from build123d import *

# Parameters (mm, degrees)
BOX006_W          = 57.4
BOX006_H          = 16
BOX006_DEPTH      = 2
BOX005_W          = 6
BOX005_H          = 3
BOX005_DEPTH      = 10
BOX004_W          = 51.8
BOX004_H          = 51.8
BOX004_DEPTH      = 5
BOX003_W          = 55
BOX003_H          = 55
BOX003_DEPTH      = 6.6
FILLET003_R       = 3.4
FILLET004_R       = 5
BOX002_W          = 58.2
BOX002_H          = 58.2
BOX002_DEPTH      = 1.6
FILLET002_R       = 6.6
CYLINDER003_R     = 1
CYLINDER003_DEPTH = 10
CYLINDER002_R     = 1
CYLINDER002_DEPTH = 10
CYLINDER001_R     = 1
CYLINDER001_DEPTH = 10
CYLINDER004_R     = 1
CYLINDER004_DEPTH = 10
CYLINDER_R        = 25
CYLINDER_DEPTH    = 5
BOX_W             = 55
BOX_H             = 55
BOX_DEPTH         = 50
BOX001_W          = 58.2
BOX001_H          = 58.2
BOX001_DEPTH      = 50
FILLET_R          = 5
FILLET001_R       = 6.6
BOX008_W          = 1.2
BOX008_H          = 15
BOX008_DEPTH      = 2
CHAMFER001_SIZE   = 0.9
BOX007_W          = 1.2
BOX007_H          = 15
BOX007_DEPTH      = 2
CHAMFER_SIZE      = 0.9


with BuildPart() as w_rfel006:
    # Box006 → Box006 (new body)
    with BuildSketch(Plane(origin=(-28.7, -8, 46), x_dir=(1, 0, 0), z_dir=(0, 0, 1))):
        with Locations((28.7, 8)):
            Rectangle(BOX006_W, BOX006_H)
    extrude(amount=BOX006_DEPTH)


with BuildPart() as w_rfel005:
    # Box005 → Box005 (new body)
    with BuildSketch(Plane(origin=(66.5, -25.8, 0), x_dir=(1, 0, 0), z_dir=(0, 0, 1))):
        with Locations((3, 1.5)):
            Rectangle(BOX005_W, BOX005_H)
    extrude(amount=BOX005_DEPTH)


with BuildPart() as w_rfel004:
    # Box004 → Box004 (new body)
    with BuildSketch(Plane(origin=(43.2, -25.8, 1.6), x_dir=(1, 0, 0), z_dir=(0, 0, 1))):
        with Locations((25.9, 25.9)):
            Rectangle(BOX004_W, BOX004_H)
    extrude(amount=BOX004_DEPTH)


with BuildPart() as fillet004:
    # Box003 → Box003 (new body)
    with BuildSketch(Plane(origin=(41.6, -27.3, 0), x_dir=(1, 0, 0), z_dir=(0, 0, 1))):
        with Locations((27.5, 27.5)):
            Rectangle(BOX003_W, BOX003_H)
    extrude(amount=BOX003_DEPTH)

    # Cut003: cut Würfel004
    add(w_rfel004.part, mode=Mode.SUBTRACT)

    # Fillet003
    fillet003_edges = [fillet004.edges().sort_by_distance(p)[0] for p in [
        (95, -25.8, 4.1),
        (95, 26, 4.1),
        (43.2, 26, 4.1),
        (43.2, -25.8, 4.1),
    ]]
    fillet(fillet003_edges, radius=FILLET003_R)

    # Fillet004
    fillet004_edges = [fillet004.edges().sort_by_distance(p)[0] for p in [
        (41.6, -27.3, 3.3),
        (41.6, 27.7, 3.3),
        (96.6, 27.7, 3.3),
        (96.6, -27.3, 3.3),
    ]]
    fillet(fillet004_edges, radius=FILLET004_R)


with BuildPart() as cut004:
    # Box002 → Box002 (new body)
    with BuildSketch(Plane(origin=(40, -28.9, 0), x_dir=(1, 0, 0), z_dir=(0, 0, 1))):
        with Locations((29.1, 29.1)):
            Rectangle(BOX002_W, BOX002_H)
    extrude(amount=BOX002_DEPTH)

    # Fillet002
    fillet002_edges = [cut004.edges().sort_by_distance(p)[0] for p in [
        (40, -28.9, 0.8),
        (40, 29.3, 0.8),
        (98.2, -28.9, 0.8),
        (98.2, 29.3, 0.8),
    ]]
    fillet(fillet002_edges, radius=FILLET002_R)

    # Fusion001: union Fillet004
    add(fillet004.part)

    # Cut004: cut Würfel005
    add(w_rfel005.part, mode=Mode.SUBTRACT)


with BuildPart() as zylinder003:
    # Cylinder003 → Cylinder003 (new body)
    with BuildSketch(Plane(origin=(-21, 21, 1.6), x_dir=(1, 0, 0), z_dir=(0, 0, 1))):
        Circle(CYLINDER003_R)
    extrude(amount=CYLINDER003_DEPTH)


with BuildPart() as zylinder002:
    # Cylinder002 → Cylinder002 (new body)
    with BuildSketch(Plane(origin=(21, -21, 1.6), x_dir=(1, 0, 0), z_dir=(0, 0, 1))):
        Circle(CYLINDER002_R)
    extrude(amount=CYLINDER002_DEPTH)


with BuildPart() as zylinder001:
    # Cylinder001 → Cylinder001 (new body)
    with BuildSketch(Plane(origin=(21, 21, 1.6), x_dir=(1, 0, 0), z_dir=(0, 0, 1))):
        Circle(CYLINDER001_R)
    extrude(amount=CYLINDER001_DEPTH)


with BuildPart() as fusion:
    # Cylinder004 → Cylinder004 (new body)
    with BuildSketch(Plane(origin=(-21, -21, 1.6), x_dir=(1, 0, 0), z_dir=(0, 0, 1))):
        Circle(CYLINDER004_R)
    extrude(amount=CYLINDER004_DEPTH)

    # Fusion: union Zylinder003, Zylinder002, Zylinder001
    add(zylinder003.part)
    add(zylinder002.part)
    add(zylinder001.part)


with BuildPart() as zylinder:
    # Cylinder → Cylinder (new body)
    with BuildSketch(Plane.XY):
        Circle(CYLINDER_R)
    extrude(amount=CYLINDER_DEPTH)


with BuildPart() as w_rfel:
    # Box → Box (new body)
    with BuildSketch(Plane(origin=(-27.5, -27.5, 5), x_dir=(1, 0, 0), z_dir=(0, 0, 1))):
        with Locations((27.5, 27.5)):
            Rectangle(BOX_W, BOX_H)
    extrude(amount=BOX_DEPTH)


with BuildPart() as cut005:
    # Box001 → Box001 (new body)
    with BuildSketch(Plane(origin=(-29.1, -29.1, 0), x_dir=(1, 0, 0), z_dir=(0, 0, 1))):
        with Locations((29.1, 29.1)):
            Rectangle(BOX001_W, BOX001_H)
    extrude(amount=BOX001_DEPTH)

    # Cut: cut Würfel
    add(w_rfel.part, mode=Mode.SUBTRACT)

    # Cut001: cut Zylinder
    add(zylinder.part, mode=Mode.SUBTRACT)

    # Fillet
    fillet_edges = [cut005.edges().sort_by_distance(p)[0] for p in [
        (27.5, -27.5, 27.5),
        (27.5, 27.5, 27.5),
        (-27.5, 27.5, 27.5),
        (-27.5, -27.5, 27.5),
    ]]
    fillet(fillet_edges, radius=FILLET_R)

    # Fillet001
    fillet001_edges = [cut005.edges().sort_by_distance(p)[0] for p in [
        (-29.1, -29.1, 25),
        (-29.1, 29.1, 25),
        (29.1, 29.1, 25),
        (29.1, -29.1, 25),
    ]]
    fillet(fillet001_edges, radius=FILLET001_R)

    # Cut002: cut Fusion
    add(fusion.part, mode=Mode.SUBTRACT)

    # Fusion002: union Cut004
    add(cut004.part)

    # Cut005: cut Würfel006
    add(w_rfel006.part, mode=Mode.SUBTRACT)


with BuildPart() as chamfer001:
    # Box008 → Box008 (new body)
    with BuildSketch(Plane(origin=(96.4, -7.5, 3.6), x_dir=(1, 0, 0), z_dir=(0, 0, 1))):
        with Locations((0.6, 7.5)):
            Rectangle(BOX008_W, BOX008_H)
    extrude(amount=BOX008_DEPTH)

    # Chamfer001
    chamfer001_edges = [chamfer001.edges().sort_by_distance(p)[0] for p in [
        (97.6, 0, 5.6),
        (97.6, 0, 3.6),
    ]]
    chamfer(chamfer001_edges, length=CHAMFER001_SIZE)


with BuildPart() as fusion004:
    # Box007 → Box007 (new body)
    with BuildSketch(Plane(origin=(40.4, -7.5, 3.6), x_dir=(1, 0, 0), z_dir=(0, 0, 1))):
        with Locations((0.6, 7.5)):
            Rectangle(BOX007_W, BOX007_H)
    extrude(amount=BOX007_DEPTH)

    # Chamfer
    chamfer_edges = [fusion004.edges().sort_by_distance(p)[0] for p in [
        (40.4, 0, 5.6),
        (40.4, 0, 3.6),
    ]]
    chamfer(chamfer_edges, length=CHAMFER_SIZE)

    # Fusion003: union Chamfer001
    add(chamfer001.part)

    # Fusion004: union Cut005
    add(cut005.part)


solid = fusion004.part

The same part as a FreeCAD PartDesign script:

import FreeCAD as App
import Part
import Sketcher

V = App.Vector


def edges_at(feature, points):
    """Names of the edges that pass closest to the given points."""
    edges = feature.Shape.Edges
    near = lambda p: min(range(len(edges)), key=lambda i: edges[i].distToShape(Part.Vertex(*p))[0])
    return sorted({f"Edge{near(p) + 1}" for p in points})


def add_polygon(sketch, points):
    """Adds a closed chain of lines whose ends are joined by coincident constraints."""
    first, n = sketch.GeometryCount, len(points)
    for a, b in zip(points, points[1:] + points[:1]):
        sketch.addGeometry(Part.LineSegment(App.Vector(*a, 0), App.Vector(*b, 0)), False)
    for i in range(n):
        sketch.addConstraint(Sketcher.Constraint("Coincident", first + i, 2, first + (i + 1) % n, 1))

doc = App.newDocument("Part")
params = doc.addObject("Spreadsheet::Sheet", "Params")
for row, (alias, value) in enumerate([
    ("sketch1_height", "16 mm"),
    ("sketch1_width", "57.4 mm"),
    ("pad1_length", "2 mm"),
    ("sketch2_width", "6 mm"),
    ("sketch2_height", "3 mm"),
    ("pad2_length", "10 mm"),
    ("sketch3_width", "51.8 mm"),
    ("pad3_length", "5 mm"),
    ("sketch4_width", "55 mm"),
    ("pad4_length", "6.6 mm"),
    ("fillet_radius", "3.4 mm"),
    ("fillet2_radius", "5 mm"),
    ("sketch5_width", "58.2 mm"),
    ("pad5_length", "1.6 mm"),
    ("fillet3_radius", "6.6 mm"),
    ("sketch6_diameter", "2 mm"),
    ("pad6_length", "10 mm"),
    ("sketch7_diameter", "2 mm"),
    ("pad7_length", "10 mm"),
    ("sketch8_diameter", "2 mm"),
    ("pad8_length", "10 mm"),
    ("sketch9_diameter", "2 mm"),
    ("pad9_length", "10 mm"),
    ("sketch10_diameter", "50 mm"),
    ("pad10_length", "5 mm"),
    ("sketch11_width", "55 mm"),
    ("pad11_length", "50 mm"),
    ("sketch12_width", "58.2 mm"),
    ("pad12_length", "50 mm"),
    ("fillet4_radius", "5 mm"),
    ("fillet5_radius", "6.6 mm"),
    ("sketch13_height", "15 mm"),
    ("sketch13_width", "1.2 mm"),
    ("pad13_length", "2 mm"),
    ("chamfer_size", "0.9 mm"),
    ("sketch14_height", "15 mm"),
    ("sketch14_width", "1.2 mm"),
    ("pad14_length", "2 mm"),
    ("chamfer2_size", "0.9 mm"),
], start=1):
    params.set(f"A{row}", alias)
    params.set(f"B{row}", "=" + value)
    params.setAlias(f"B{row}", alias)

body = doc.addObject("PartDesign::Body", "Body")

sketch1 = body.newObject("Sketcher::SketchObject", "Sketch")
sketch1.AttachmentSupport = (doc.getObject("XY_Plane"), [""])
sketch1.MapMode = "FlatFace"
sketch1.AttachmentOffset = App.Placement(V(0, 0, 46), App.Rotation())
add_polygon(sketch1, [(-29, 8), (-29, -8), (29, -8), (29, 8)])
sketch1.addConstraint([
    Sketcher.Constraint("Vertical", 0),
    Sketcher.Constraint("Horizontal", 1),
    Sketcher.Constraint("Vertical", 2),
    Sketcher.Constraint("Horizontal", 3),
    Sketcher.Constraint("Symmetric", 0, 2, 2, 2, -1, 1),
    Sketcher.Constraint("DistanceY", 0, 2, 0, 1, 16.0),
    Sketcher.Constraint("DistanceX", 1, 1, 1, 2, 57.4),
])
sketch1.setExpression("Constraints[9]", "Params.sketch1_height")
sketch1.setExpression("Constraints[10]", "Params.sketch1_width")
pad1 = body.newObject("PartDesign::Pad", "Pad")
pad1.Profile = sketch1
pad1.setExpression("Length", "Params.pad1_length")
body2 = doc.addObject("PartDesign::Body", "Body001")

sketch2 = body2.newObject("Sketcher::SketchObject", "Sketch001")
sketch2.AttachmentSupport = (doc.getObject("XY_Plane001"), [""])
sketch2.MapMode = "FlatFace"
add_polygon(sketch2, [(66.5, -22.8), (66.5, -25.8), (72.5, -25.8), (72.5, -22.8)])
sketch2.addConstraint([
    Sketcher.Constraint("Vertical", 0),
    Sketcher.Constraint("Horizontal", 1),
    Sketcher.Constraint("Vertical", 2),
    Sketcher.Constraint("Horizontal", 3),
    Sketcher.Constraint("DistanceX", 1, 1, 1, 2, 6.0),
    Sketcher.Constraint("DistanceY", 0, 2, 0, 1, 3.0),
    Sketcher.Constraint("DistanceX", -1, 1, 0, 2, 66.5),
    Sketcher.Constraint("DistanceY", 0, 2, -1, 1, 25.8),
])
sketch2.setExpression("Constraints[8]", "Params.sketch2_width")
sketch2.setExpression("Constraints[9]", "Params.sketch2_height")
pad2 = body2.newObject("PartDesign::Pad", "Pad001")
pad2.Profile = sketch2
pad2.setExpression("Length", "Params.pad2_length")
body3 = doc.addObject("PartDesign::Body", "Body002")

sketch3 = body3.newObject("Sketcher::SketchObject", "Sketch002")
sketch3.AttachmentSupport = (doc.getObject("XY_Plane002"), [""])
sketch3.MapMode = "FlatFace"
sketch3.AttachmentOffset = App.Placement(V(0, 0, 1.6), App.Rotation())
add_polygon(sketch3, [(43, 26), (43, -26), (95, -26), (95, 26)])
sketch3.addConstraint([
    Sketcher.Constraint("Vertical", 0),
    Sketcher.Constraint("Horizontal", 1),
    Sketcher.Constraint("Vertical", 2),
    Sketcher.Constraint("Horizontal", 3),
    Sketcher.Constraint("Equal", 3, 0),
    Sketcher.Constraint("DistanceX", 1, 1, 1, 2, 51.8),
    Sketcher.Constraint("DistanceX", -1, 1, 1, 2, 95.0),
    Sketcher.Constraint("DistanceY", -1, 1, 2, 2, 26.0),
])
sketch3.setExpression("Constraints[9]", "Params.sketch3_width")
pad3 = body3.newObject("PartDesign::Pad", "Pad002")
pad3.Profile = sketch3
pad3.setExpression("Length", "Params.pad3_length")
body4 = doc.addObject("PartDesign::Body", "Body003")

sketch4 = body4.newObject("Sketcher::SketchObject", "Sketch003")
sketch4.AttachmentSupport = (doc.getObject("XY_Plane003"), [""])
sketch4.MapMode = "FlatFace"
add_polygon(sketch4, [(42, 28), (42, -27), (97, -27), (97, 28)])
sketch4.addConstraint([
    Sketcher.Constraint("Vertical", 0),
    Sketcher.Constraint("Horizontal", 1),
    Sketcher.Constraint("Vertical", 2),
    Sketcher.Constraint("Horizontal", 3),
    Sketcher.Constraint("Equal", 3, 0),
    Sketcher.Constraint("DistanceX", 1, 1, 1, 2, 55.0),
    Sketcher.Constraint("DistanceX", -1, 1, 0, 2, 41.6),
    Sketcher.Constraint("DistanceY", 0, 2, -1, 1, 27.3),
])
sketch4.setExpression("Constraints[9]", "Params.sketch4_width")
pad4 = body4.newObject("PartDesign::Pad", "Pad003")
pad4.Profile = sketch4
pad4.setExpression("Length", "Params.pad4_length")
doc.recompute()

boolean = body4.newObject("PartDesign::Boolean", "Boolean")
boolean.Type = "Cut"
boolean.addObjects([body3])
doc.recompute()

fillet = body4.newObject("PartDesign::Fillet", "Fillet")
fillet.Base = (boolean, edges_at(boolean, [
    (95, -25.8, 4.1),
    (95, 26, 4.1),
    (43.2, 26, 4.1),
    (43.2, -25.8, 4.1),
]))
fillet.setExpression("Radius", "Params.fillet_radius")
doc.recompute()

fillet2 = body4.newObject("PartDesign::Fillet", "Fillet001")
fillet2.Base = (fillet, edges_at(fillet, [
    (41.6, -27.3, 3.3),
    (41.6, 27.7, 3.3),
    (96.6, 27.7, 3.3),
    (96.6, -27.3, 3.3),
]))
fillet2.setExpression("Radius", "Params.fillet2_radius")
body5 = doc.addObject("PartDesign::Body", "Body004")

sketch5 = body5.newObject("Sketcher::SketchObject", "Sketch004")
sketch5.AttachmentSupport = (doc.getObject("XY_Plane004"), [""])
sketch5.MapMode = "FlatFace"
add_polygon(sketch5, [(40, 29), (40, -29), (98, -29), (98, 29)])
sketch5.addConstraint([
    Sketcher.Constraint("Vertical", 0),
    Sketcher.Constraint("Horizontal", 1),
    Sketcher.Constraint("Vertical", 2),
    Sketcher.Constraint("Horizontal", 3),
    Sketcher.Constraint("Equal", 3, 0),
    Sketcher.Constraint("DistanceX", 1, 1, 1, 2, 58.2),
    Sketcher.Constraint("DistanceX", -1, 1, 0, 2, 40.0),
    Sketcher.Constraint("DistanceY", 0, 2, -1, 1, 28.9),
])
sketch5.setExpression("Constraints[9]", "Params.sketch5_width")
pad5 = body5.newObject("PartDesign::Pad", "Pad004")
pad5.Profile = sketch5
pad5.setExpression("Length", "Params.pad5_length")
doc.recompute()

fillet3 = body5.newObject("PartDesign::Fillet", "Fillet002")
fillet3.Base = (pad5, edges_at(pad5, [
    (40, -28.9, 0.8),
    (40, 29.3, 0.8),
    (98.2, -28.9, 0.8),
    (98.2, 29.3, 0.8),
]))
fillet3.setExpression("Radius", "Params.fillet3_radius")
doc.recompute()

boolean2 = body5.newObject("PartDesign::Boolean", "Boolean001")
boolean2.Type = "Fuse"
boolean2.addObjects([body4])
doc.recompute()

boolean3 = body5.newObject("PartDesign::Boolean", "Boolean002")
boolean3.Type = "Cut"
boolean3.addObjects([body2])
body6 = doc.addObject("PartDesign::Body", "Body005")

sketch6 = body6.newObject("Sketcher::SketchObject", "Sketch005")
sketch6.AttachmentSupport = (doc.getObject("XY_Plane005"), [""])
sketch6.MapMode = "FlatFace"
sketch6.AttachmentOffset = App.Placement(V(0, 0, 1.6), App.Rotation())
sketch6.addGeometry(Part.Circle(V(-21, 21, 0), V(0, 0, 1), 1), False)
sketch6.addConstraint([
    Sketcher.Constraint("Diameter", 0, 2.0),
    Sketcher.Constraint("DistanceX", 0, 3, -1, 1, 21.0),
    Sketcher.Constraint("DistanceY", -1, 1, 0, 3, 21.0),
])
sketch6.setExpression("Constraints[0]", "Params.sketch6_diameter")
pad6 = body6.newObject("PartDesign::Pad", "Pad005")
pad6.Profile = sketch6
pad6.setExpression("Length", "Params.pad6_length")
body7 = doc.addObject("PartDesign::Body", "Body006")

sketch7 = body7.newObject("Sketcher::SketchObject", "Sketch006")
sketch7.AttachmentSupport = (doc.getObject("XY_Plane006"), [""])
sketch7.MapMode = "FlatFace"
sketch7.AttachmentOffset = App.Placement(V(0, 0, 1.6), App.Rotation())
sketch7.addGeometry(Part.Circle(V(21, -21, 0), V(0, 0, 1), 1), False)
sketch7.addConstraint([
    Sketcher.Constraint("Diameter", 0, 2.0),
    Sketcher.Constraint("DistanceX", -1, 1, 0, 3, 21.0),
    Sketcher.Constraint("DistanceY", 0, 3, -1, 1, 21.0),
])
sketch7.setExpression("Constraints[0]", "Params.sketch7_diameter")
pad7 = body7.newObject("PartDesign::Pad", "Pad006")
pad7.Profile = sketch7
pad7.setExpression("Length", "Params.pad7_length")
body8 = doc.addObject("PartDesign::Body", "Body007")

sketch8 = body8.newObject("Sketcher::SketchObject", "Sketch007")
sketch8.AttachmentSupport = (doc.getObject("XY_Plane007"), [""])
sketch8.MapMode = "FlatFace"
sketch8.AttachmentOffset = App.Placement(V(0, 0, 1.6), App.Rotation())
sketch8.addGeometry(Part.Circle(V(21, 21, 0), V(0, 0, 1), 1), False)
sketch8.addConstraint([
    Sketcher.Constraint("Diameter", 0, 2.0),
    Sketcher.Constraint("DistanceX", -1, 1, 0, 3, 21.0),
    Sketcher.Constraint("DistanceY", -1, 1, 0, 3, 21.0),
])
sketch8.setExpression("Constraints[0]", "Params.sketch8_diameter")
pad8 = body8.newObject("PartDesign::Pad", "Pad007")
pad8.Profile = sketch8
pad8.setExpression("Length", "Params.pad8_length")
body9 = doc.addObject("PartDesign::Body", "Body008")
body9.AllowCompound = True

sketch9 = body9.newObject("Sketcher::SketchObject", "Sketch008")
sketch9.AttachmentSupport = (doc.getObject("XY_Plane008"), [""])
sketch9.MapMode = "FlatFace"
sketch9.AttachmentOffset = App.Placement(V(0, 0, 1.6), App.Rotation())
sketch9.addGeometry(Part.Circle(V(-21, -21, 0), V(0, 0, 1), 1), False)
sketch9.addConstraint([
    Sketcher.Constraint("Diameter", 0, 2.0),
    Sketcher.Constraint("DistanceX", 0, 3, -1, 1, 21.0),
    Sketcher.Constraint("DistanceY", 0, 3, -1, 1, 21.0),
])
sketch9.setExpression("Constraints[0]", "Params.sketch9_diameter")
pad9 = body9.newObject("PartDesign::Pad", "Pad008")
pad9.Profile = sketch9
pad9.setExpression("Length", "Params.pad9_length")
doc.recompute()

boolean4 = body9.newObject("PartDesign::Boolean", "Boolean003")
boolean4.Type = "Fuse"
boolean4.addObjects([body6])
doc.recompute()

boolean5 = body9.newObject("PartDesign::Boolean", "Boolean004")
boolean5.Type = "Fuse"
boolean5.addObjects([body7])
doc.recompute()

boolean6 = body9.newObject("PartDesign::Boolean", "Boolean005")
boolean6.Type = "Fuse"
boolean6.addObjects([body8])
body10 = doc.addObject("PartDesign::Body", "Body009")

sketch10 = body10.newObject("Sketcher::SketchObject", "Sketch009")
sketch10.AttachmentSupport = (doc.getObject("XY_Plane009"), [""])
sketch10.MapMode = "FlatFace"
sketch10.addGeometry(Part.Circle(V(0, 0, 0), V(0, 0, 1), 25), False)
sketch10.addConstraint([
    Sketcher.Constraint("Coincident", 0, 3, -1, 1),
    Sketcher.Constraint("Diameter", 0, 50.0),
])
sketch10.setExpression("Constraints[1]", "Params.sketch10_diameter")
pad10 = body10.newObject("PartDesign::Pad", "Pad009")
pad10.Profile = sketch10
pad10.setExpression("Length", "Params.pad10_length")
body11 = doc.addObject("PartDesign::Body", "Body010")

sketch11 = body11.newObject("Sketcher::SketchObject", "Sketch010")
sketch11.AttachmentSupport = (doc.getObject("XY_Plane010"), [""])
sketch11.MapMode = "FlatFace"
sketch11.AttachmentOffset = App.Placement(V(0, 0, 5), App.Rotation())
add_polygon(sketch11, [(-28, 28), (-28, -28), (28, -28), (28, 28)])
sketch11.addConstraint([
    Sketcher.Constraint("Vertical", 0),
    Sketcher.Constraint("Horizontal", 1),
    Sketcher.Constraint("Vertical", 2),
    Sketcher.Constraint("Horizontal", 3),
    Sketcher.Constraint("Symmetric", 0, 2, 2, 2, -1, 1),
    Sketcher.Constraint("Equal", 3, 0),
    Sketcher.Constraint("DistanceX", 1, 1, 1, 2, 55.0),
])
sketch11.setExpression("Constraints[10]", "Params.sketch11_width")
pad11 = body11.newObject("PartDesign::Pad", "Pad010")
pad11.Profile = sketch11
pad11.setExpression("Length", "Params.pad11_length")
body12 = doc.addObject("PartDesign::Body", "Body011")
body12.AllowCompound = True

sketch12 = body12.newObject("Sketcher::SketchObject", "Sketch011")
sketch12.AttachmentSupport = (doc.getObject("XY_Plane011"), [""])
sketch12.MapMode = "FlatFace"
add_polygon(sketch12, [(-29, 29), (-29, -29), (29, -29), (29, 29)])
sketch12.addConstraint([
    Sketcher.Constraint("Vertical", 0),
    Sketcher.Constraint("Horizontal", 1),
    Sketcher.Constraint("Vertical", 2),
    Sketcher.Constraint("Horizontal", 3),
    Sketcher.Constraint("Symmetric", 0, 2, 2, 2, -1, 1),
    Sketcher.Constraint("Equal", 3, 0),
    Sketcher.Constraint("DistanceX", 1, 1, 1, 2, 58.2),
])
sketch12.setExpression("Constraints[10]", "Params.sketch12_width")
pad12 = body12.newObject("PartDesign::Pad", "Pad011")
pad12.Profile = sketch12
pad12.setExpression("Length", "Params.pad12_length")
doc.recompute()

boolean7 = body12.newObject("PartDesign::Boolean", "Boolean006")
boolean7.Type = "Cut"
boolean7.addObjects([body11])
doc.recompute()

boolean8 = body12.newObject("PartDesign::Boolean", "Boolean007")
boolean8.Type = "Cut"
boolean8.addObjects([body10])
doc.recompute()

fillet4 = body12.newObject("PartDesign::Fillet", "Fillet003")
fillet4.Base = (boolean8, edges_at(boolean8, [
    (27.5, -27.5, 27.5),
    (27.5, 27.5, 27.5),
    (-27.5, 27.5, 27.5),
    (-27.5, -27.5, 27.5),
]))
fillet4.setExpression("Radius", "Params.fillet4_radius")
doc.recompute()

fillet5 = body12.newObject("PartDesign::Fillet", "Fillet004")
fillet5.Base = (fillet4, edges_at(fillet4, [
    (-29.1, -29.1, 25),
    (-29.1, 29.1, 25),
    (29.1, 29.1, 25),
    (29.1, -29.1, 25),
]))
fillet5.setExpression("Radius", "Params.fillet5_radius")
doc.recompute()

boolean9 = body12.newObject("PartDesign::Boolean", "Boolean008")
boolean9.Type = "Cut"
boolean9.addObjects([body9])
doc.recompute()

boolean10 = body12.newObject("PartDesign::Boolean", "Boolean009")
boolean10.Type = "Fuse"
boolean10.addObjects([body5])
doc.recompute()

boolean11 = body12.newObject("PartDesign::Boolean", "Boolean010")
boolean11.Type = "Cut"
boolean11.addObjects([body])
body13 = doc.addObject("PartDesign::Body", "Body012")

sketch13 = body13.newObject("Sketcher::SketchObject", "Sketch012")
sketch13.AttachmentSupport = (doc.getObject("XY_Plane012"), [""])
sketch13.MapMode = "FlatFace"
sketch13.AttachmentOffset = App.Placement(V(0, 0, 3.6), App.Rotation())
add_polygon(sketch13, [(96.4, 7.5), (96.4, -7.5), (97.6, -7.5), (97.6, 7.5)])
sketch13.addConstraint([
    Sketcher.Constraint("Vertical", 0),
    Sketcher.Constraint("Horizontal", 1),
    Sketcher.Constraint("Vertical", 2),
    Sketcher.Constraint("Horizontal", 3),
    Sketcher.Constraint("DistanceY", 0, 2, 0, 1, 15.0),
    Sketcher.Constraint("DistanceX", 1, 1, 1, 2, 1.2),
    Sketcher.Constraint("DistanceX", -1, 1, 0, 2, 96.4),
    Sketcher.Constraint("DistanceY", 0, 2, -1, 1, 7.5),
])
sketch13.setExpression("Constraints[8]", "Params.sketch13_height")
sketch13.setExpression("Constraints[9]", "Params.sketch13_width")
pad13 = body13.newObject("PartDesign::Pad", "Pad012")
pad13.Profile = sketch13
pad13.setExpression("Length", "Params.pad13_length")
doc.recompute()

chamfer = body13.newObject("PartDesign::Chamfer", "Chamfer")
chamfer.Base = (pad13, edges_at(pad13, [(97.6, 0, 5.6), (97.6, 0, 3.6)]))
chamfer.setExpression("Size", "Params.chamfer_size")
body14 = doc.addObject("PartDesign::Body", "Body013")
body14.AllowCompound = True

sketch14 = body14.newObject("Sketcher::SketchObject", "Sketch013")
sketch14.AttachmentSupport = (doc.getObject("XY_Plane013"), [""])
sketch14.MapMode = "FlatFace"
sketch14.AttachmentOffset = App.Placement(V(0, 0, 3.6), App.Rotation())
add_polygon(sketch14, [(40.4, 7.5), (40.4, -7.5), (41.6, -7.5), (41.6, 7.5)])
sketch14.addConstraint([
    Sketcher.Constraint("Vertical", 0),
    Sketcher.Constraint("Horizontal", 1),
    Sketcher.Constraint("Vertical", 2),
    Sketcher.Constraint("Horizontal", 3),
    Sketcher.Constraint("DistanceY", 0, 2, 0, 1, 15.0),
    Sketcher.Constraint("DistanceX", 1, 1, 1, 2, 1.2),
    Sketcher.Constraint("DistanceX", -1, 1, 0, 2, 40.4),
    Sketcher.Constraint("DistanceY", 0, 2, -1, 1, 7.5),
])
sketch14.setExpression("Constraints[8]", "Params.sketch14_height")
sketch14.setExpression("Constraints[9]", "Params.sketch14_width")
pad14 = body14.newObject("PartDesign::Pad", "Pad013")
pad14.Profile = sketch14
pad14.setExpression("Length", "Params.pad14_length")
doc.recompute()

chamfer2 = body14.newObject("PartDesign::Chamfer", "Chamfer001")
chamfer2.Base = (pad14, edges_at(pad14, [(40.4, 0, 5.6), (40.4, 0, 3.6)]))
chamfer2.setExpression("Size", "Params.chamfer2_size")
doc.recompute()

boolean12 = body14.newObject("PartDesign::Boolean", "Boolean011")
boolean12.Type = "Fuse"
boolean12.addObjects([body13])
doc.recompute()

boolean13 = body14.newObject("PartDesign::Boolean", "Boolean012")
boolean13.Type = "Fuse"
boolean13.addObjects([body12])

doc.recompute()
